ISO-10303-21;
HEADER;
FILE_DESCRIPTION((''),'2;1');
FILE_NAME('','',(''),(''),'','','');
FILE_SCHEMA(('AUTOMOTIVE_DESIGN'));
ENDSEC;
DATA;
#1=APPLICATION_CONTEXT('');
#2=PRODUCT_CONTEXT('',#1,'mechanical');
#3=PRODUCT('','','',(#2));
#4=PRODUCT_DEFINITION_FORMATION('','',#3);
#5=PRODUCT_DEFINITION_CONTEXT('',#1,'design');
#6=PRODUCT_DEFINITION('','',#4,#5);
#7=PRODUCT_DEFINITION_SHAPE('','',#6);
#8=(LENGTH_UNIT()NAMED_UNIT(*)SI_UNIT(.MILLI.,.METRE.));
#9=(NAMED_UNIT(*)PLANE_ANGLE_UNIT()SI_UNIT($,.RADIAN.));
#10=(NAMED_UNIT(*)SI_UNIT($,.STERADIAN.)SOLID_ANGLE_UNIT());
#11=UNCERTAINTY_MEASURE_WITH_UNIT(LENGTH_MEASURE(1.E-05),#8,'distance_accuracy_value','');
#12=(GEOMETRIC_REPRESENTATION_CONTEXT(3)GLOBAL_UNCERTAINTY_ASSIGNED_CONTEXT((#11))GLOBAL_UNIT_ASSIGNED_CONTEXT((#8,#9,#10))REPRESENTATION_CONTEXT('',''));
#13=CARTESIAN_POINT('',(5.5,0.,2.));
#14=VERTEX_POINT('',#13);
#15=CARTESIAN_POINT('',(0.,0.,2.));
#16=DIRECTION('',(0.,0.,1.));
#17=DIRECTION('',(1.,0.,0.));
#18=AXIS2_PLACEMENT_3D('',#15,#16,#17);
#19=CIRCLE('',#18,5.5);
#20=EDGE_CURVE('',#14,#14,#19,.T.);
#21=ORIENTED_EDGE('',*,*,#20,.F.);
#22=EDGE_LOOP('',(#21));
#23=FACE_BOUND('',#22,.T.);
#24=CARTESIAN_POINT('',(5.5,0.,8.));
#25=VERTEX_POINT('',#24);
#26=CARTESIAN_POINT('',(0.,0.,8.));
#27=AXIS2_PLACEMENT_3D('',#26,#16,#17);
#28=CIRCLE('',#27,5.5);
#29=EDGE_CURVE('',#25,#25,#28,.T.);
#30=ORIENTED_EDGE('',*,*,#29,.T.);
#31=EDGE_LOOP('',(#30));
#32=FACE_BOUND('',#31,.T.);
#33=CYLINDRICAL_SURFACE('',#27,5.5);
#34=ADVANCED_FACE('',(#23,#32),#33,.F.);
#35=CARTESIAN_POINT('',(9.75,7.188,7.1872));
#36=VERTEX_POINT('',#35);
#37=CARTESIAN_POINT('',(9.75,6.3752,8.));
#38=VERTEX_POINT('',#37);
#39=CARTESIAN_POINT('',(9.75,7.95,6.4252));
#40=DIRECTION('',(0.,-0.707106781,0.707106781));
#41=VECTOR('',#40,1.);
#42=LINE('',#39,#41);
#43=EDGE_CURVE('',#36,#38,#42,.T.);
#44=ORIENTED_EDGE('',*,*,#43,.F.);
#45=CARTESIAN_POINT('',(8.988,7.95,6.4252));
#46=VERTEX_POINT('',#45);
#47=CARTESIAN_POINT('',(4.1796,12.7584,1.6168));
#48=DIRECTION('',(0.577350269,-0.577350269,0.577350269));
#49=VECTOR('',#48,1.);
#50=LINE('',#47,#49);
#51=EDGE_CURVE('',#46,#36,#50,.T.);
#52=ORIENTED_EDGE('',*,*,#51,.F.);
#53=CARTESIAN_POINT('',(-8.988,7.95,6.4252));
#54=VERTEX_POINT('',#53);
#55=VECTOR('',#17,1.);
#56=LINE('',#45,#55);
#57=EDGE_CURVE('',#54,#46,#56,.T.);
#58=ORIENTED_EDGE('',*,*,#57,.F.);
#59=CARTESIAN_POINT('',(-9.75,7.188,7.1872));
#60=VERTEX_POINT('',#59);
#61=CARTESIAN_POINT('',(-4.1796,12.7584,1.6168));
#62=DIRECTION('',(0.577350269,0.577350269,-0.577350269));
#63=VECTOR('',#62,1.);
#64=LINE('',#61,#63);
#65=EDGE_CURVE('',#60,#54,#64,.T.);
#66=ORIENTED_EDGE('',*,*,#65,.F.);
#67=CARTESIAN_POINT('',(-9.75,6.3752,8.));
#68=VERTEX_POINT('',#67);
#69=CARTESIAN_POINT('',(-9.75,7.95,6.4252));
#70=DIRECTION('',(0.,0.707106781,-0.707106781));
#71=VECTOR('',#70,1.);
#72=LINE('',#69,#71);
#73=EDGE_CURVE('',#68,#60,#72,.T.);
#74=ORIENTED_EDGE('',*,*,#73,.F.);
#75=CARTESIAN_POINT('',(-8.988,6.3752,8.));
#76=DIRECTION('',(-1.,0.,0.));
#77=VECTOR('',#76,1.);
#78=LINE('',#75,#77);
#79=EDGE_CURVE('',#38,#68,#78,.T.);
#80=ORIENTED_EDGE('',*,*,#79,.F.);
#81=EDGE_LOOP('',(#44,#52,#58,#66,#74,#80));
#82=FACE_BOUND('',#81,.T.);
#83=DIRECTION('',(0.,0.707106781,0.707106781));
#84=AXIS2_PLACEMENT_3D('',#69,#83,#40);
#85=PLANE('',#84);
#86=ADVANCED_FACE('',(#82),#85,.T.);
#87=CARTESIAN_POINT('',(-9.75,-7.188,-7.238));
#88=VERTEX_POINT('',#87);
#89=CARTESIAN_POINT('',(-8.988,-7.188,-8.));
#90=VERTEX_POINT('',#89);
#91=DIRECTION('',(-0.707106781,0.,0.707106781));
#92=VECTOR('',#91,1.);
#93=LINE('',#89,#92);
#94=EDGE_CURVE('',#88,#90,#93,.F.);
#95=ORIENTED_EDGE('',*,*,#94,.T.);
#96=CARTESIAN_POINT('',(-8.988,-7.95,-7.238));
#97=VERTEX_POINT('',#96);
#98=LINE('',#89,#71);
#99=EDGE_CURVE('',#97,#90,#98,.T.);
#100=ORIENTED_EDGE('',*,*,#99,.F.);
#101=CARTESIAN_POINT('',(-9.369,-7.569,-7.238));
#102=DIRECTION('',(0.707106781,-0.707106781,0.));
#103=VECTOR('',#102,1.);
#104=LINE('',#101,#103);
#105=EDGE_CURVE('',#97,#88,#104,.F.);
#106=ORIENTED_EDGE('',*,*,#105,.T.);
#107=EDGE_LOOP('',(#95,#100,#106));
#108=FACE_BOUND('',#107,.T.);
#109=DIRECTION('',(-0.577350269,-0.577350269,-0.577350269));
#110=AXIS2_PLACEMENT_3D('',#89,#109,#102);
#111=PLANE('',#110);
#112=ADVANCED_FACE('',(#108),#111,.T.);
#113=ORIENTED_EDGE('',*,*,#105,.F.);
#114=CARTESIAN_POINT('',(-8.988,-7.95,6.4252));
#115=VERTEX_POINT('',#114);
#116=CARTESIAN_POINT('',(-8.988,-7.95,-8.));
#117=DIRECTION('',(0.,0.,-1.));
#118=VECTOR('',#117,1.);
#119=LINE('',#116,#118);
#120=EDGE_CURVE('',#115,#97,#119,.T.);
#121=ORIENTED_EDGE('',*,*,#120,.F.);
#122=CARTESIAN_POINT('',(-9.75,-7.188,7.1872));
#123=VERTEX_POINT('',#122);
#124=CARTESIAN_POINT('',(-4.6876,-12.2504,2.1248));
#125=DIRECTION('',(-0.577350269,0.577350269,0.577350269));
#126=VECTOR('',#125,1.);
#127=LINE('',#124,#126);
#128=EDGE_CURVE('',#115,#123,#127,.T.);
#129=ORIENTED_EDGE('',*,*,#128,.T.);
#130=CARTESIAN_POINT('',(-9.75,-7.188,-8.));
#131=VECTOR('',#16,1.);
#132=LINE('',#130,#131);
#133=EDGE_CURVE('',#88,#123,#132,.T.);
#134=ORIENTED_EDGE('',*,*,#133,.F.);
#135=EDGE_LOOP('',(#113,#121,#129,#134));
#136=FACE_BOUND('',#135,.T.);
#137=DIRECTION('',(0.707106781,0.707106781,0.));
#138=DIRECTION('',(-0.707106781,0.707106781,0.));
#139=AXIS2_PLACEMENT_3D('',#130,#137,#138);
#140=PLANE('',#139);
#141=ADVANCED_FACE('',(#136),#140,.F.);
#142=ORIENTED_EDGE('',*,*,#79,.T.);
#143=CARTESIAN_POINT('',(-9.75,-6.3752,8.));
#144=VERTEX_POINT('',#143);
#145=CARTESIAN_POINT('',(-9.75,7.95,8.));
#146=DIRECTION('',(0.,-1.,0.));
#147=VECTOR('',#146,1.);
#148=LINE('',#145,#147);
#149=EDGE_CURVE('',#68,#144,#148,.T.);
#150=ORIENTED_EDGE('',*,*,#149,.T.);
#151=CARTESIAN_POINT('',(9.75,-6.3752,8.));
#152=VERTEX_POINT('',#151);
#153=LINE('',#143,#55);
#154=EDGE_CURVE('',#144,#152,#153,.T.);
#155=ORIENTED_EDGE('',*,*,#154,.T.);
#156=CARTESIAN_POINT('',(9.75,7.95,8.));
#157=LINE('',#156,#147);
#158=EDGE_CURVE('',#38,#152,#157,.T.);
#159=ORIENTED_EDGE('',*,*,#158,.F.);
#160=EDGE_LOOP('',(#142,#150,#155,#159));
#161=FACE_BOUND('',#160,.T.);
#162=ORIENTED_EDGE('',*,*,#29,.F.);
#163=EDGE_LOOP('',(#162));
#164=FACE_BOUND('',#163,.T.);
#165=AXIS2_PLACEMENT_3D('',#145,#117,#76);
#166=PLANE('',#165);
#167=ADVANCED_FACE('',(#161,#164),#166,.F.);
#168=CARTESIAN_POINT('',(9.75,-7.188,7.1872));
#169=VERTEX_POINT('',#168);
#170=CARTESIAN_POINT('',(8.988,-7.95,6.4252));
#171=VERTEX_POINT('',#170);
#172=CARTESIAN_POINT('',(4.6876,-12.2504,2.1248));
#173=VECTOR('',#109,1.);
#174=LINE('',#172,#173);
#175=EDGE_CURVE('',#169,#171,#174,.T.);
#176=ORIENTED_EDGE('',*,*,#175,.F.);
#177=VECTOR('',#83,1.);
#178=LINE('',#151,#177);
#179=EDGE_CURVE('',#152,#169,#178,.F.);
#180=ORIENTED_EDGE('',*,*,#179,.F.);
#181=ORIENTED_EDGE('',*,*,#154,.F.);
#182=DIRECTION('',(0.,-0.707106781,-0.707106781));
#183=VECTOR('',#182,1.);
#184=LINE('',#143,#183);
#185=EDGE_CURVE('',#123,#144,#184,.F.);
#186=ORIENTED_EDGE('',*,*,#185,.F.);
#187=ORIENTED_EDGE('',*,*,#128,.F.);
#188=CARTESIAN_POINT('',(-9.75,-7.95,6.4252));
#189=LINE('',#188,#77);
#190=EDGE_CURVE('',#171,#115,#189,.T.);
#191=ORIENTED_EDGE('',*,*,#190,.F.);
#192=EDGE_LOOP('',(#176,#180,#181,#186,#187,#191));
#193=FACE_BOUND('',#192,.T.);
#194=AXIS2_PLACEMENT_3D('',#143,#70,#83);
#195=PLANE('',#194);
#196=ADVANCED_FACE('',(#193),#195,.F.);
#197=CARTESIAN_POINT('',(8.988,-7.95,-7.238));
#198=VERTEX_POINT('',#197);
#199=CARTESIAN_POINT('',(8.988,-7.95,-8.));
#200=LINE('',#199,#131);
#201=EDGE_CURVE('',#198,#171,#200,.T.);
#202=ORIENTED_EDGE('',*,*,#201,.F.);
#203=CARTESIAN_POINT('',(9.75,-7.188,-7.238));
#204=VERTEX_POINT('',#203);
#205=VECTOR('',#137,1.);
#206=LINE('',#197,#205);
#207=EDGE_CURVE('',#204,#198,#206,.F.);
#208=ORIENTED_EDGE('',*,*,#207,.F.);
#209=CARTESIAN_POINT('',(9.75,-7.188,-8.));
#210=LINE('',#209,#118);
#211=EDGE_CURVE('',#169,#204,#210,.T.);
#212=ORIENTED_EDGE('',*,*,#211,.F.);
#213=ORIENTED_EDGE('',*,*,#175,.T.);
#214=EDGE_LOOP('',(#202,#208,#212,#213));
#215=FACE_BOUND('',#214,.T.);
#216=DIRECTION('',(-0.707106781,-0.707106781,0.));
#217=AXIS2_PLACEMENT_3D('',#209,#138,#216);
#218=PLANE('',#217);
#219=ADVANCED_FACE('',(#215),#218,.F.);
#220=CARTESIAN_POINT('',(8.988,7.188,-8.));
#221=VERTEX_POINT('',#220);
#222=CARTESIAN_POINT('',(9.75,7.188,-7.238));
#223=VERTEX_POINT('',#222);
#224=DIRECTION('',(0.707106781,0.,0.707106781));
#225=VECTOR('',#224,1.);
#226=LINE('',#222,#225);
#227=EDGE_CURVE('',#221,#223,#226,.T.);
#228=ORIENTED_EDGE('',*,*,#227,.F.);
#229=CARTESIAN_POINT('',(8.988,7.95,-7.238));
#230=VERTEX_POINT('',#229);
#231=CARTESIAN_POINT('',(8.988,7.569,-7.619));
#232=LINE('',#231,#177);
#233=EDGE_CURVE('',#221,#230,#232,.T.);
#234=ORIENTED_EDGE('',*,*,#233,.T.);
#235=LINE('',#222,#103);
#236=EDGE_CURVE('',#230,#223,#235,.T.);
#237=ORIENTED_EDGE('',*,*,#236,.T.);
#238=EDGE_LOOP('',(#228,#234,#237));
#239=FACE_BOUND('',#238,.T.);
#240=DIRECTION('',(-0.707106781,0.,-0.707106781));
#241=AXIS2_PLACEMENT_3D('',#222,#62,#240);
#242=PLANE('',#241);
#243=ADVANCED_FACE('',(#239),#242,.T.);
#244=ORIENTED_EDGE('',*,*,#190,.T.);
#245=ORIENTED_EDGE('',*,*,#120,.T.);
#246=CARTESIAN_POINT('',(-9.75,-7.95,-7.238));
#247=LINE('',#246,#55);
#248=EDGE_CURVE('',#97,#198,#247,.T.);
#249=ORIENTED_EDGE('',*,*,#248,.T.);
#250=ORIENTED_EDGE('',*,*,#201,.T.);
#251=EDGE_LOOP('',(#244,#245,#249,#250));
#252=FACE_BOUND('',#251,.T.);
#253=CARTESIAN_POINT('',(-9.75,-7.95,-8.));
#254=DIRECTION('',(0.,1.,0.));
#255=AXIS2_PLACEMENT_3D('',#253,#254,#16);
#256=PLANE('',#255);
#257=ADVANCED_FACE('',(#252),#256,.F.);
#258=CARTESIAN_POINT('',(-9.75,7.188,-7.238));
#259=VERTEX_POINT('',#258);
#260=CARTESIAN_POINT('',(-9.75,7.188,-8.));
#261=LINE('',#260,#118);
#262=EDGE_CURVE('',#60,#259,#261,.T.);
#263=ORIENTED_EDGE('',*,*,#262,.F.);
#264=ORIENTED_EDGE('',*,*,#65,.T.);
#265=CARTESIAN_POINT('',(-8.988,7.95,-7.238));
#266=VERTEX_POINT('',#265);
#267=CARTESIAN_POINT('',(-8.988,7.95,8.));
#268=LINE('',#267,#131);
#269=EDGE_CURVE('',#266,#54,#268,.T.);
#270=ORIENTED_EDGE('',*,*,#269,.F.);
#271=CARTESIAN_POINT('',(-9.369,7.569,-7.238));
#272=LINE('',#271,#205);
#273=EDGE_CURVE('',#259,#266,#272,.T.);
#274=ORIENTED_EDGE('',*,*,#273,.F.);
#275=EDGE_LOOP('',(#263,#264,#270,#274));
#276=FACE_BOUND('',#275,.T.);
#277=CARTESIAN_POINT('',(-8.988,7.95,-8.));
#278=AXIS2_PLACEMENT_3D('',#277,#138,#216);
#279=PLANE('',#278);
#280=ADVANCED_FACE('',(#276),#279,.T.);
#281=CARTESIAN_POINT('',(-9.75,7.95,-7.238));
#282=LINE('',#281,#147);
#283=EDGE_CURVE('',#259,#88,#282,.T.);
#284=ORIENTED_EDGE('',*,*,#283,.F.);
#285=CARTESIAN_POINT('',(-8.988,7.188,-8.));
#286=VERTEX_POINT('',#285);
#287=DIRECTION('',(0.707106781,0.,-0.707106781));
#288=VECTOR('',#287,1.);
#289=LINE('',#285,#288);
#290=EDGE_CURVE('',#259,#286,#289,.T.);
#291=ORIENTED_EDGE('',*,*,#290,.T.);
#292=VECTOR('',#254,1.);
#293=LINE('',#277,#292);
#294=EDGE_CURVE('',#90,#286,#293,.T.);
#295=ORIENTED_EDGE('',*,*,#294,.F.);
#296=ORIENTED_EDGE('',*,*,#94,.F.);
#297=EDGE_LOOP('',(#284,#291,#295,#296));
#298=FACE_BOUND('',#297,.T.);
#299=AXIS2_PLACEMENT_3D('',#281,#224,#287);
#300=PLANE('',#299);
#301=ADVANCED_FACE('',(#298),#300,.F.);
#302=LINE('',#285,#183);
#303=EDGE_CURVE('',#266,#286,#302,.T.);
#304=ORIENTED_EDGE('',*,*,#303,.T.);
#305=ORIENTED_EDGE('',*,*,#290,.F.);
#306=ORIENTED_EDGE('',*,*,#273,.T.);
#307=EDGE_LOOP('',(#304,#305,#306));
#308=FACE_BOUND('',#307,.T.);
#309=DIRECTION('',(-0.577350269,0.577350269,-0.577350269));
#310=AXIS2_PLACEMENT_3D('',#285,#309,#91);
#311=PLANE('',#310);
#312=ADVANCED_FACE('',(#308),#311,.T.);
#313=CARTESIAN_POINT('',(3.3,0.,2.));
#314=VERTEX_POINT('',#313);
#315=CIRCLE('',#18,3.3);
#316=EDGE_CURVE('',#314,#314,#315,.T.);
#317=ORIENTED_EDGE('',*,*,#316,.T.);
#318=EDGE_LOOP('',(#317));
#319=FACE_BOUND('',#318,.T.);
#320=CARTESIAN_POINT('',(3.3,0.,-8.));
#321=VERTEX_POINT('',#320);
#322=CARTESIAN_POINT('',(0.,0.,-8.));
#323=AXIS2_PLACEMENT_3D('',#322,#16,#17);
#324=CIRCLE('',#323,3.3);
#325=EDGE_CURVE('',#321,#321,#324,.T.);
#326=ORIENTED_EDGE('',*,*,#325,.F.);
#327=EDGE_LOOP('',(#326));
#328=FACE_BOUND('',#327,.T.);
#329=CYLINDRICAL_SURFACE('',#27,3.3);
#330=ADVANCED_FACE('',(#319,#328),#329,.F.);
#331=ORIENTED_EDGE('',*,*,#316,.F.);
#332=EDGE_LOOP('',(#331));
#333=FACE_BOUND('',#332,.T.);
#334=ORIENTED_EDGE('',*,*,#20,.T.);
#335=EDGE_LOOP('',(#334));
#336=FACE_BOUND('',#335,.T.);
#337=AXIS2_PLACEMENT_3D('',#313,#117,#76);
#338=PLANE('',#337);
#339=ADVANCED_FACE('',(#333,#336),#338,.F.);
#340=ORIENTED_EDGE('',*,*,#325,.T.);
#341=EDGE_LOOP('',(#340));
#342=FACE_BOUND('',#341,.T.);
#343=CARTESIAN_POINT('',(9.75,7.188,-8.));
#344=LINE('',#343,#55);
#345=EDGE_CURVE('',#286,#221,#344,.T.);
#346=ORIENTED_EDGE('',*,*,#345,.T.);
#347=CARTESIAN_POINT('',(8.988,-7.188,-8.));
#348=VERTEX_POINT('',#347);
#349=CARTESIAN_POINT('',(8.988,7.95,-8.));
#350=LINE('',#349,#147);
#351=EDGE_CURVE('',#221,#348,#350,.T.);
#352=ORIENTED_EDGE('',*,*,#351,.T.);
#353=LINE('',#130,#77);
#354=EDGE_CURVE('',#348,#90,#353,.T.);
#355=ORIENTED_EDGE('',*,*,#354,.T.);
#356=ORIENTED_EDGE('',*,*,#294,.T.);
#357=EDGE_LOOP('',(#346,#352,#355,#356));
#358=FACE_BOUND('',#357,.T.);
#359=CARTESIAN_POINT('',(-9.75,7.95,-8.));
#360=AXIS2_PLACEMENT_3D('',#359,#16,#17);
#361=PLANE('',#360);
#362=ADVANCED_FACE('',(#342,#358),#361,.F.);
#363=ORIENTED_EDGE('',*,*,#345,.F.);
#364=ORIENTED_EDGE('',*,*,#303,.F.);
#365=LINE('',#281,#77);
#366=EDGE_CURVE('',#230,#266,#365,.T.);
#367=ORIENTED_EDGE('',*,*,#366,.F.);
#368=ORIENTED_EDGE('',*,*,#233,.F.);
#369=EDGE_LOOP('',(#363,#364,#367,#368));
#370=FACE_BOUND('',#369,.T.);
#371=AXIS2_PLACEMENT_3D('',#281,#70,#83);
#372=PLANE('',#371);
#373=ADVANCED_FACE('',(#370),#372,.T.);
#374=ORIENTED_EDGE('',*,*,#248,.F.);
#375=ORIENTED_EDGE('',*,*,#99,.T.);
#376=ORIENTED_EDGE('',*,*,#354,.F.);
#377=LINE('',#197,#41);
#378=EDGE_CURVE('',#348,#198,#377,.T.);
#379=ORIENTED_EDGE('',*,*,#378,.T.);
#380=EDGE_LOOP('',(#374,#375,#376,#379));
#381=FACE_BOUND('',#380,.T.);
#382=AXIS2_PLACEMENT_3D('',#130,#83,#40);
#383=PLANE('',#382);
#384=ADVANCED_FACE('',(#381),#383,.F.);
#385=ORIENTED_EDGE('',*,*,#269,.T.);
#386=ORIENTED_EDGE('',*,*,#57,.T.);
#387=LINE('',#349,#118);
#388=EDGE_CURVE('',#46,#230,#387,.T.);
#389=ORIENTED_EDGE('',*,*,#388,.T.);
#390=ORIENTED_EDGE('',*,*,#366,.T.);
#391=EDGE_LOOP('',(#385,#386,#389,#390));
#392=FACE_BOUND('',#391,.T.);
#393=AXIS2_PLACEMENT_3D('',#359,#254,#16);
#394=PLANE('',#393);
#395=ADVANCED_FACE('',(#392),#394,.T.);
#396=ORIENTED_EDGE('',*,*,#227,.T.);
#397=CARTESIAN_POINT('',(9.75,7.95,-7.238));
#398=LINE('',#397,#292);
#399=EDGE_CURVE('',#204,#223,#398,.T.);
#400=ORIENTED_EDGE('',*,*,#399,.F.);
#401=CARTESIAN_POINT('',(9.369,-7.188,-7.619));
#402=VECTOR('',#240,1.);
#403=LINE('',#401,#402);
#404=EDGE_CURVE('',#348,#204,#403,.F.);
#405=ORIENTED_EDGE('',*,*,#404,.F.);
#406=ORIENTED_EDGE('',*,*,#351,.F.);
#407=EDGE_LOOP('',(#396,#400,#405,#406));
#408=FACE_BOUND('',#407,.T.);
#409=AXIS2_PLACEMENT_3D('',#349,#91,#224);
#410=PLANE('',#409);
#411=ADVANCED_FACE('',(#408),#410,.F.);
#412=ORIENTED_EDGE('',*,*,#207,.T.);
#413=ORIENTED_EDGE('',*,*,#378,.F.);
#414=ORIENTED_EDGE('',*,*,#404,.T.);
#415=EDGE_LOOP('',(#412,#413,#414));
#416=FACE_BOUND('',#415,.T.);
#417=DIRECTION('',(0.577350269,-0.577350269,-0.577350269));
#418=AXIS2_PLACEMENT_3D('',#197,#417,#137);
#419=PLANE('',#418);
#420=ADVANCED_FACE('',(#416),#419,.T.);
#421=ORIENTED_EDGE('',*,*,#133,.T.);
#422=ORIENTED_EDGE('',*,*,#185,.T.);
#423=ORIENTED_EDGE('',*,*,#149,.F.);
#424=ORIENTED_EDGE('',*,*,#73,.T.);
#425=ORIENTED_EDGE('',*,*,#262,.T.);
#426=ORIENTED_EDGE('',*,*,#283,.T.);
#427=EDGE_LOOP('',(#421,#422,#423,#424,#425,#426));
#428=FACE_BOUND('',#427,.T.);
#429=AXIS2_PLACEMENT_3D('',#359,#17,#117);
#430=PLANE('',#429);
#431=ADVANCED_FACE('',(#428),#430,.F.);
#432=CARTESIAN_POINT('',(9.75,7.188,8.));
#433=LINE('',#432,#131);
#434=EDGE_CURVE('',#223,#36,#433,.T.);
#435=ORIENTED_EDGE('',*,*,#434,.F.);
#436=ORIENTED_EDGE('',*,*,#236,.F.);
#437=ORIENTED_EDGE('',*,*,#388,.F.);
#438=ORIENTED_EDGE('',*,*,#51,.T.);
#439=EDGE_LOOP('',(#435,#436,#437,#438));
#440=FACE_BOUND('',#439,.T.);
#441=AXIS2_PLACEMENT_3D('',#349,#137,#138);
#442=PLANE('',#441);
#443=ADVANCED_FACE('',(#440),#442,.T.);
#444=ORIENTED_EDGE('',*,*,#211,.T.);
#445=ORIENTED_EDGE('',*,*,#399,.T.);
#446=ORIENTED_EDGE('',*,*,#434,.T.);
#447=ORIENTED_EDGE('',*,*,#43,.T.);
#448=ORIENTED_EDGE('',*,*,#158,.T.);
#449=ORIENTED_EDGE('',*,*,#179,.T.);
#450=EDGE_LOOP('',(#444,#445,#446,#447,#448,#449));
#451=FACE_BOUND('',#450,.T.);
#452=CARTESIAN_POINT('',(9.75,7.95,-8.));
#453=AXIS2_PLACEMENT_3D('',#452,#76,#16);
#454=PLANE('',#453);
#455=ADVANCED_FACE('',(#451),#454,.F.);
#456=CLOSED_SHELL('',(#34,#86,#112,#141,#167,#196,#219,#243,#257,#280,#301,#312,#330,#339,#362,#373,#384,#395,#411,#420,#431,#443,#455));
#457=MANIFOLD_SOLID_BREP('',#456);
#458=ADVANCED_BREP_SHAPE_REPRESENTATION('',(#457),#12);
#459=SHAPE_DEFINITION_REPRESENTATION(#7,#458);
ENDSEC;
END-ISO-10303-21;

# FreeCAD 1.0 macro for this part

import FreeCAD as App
import Part
import Sketcher
from FreeCAD import Vector


def edges_at(feature, points):
    """Names of the edges that pass closest to the given points."""
    edges = feature.Shape.Edges
    near = lambda p: min(range(len(edges)), key=lambda i: edges[i].distToShape(Part.Vertex(*p))[0])
    return sorted({f"Edge{near(p) + 1}" for p in points})


def add_polygon(sketch, points):
    """Adds a closed chain of lines whose ends are joined by coincident constraints."""
    first, n = sketch.GeometryCount, len(points)
    for a, b in zip(points, points[1:] + points[:1]):
        sketch.addGeometry(Part.LineSegment(App.Vector(*a, 0), App.Vector(*b, 0)), False)
    for i in range(n):
        sketch.addConstraint(Sketcher.Constraint("Coincident", first + i, 2, first + (i + 1) % n, 1))

doc = App.newDocument("Part")
body = doc.addObject("PartDesign::Body", "Body")

sketch1 = body.newObject("Sketcher::SketchObject", "Sketch")
sketch1.AttachmentSupport = (doc.getObject("XZ_Plane"), [""])
sketch1.MapMode = "FlatFace"
add_polygon(sketch1, [(-10, -8), (-10, 8), (10, 8), (10, -8)])
sketch1.addConstraint(Sketcher.Constraint("Vertical", 0))
sketch1.addConstraint(Sketcher.Constraint("Horizontal", 1))
sketch1.addConstraint(Sketcher.Constraint("Vertical", 2))
sketch1.addConstraint(Sketcher.Constraint("Horizontal", 3))
sketch1.addConstraint(Sketcher.Constraint("Symmetric", 0, 2, 2, 2, -1, 1))
sketch1.addConstraint(Sketcher.Constraint("DistanceY", 0, 1, 0, 2, 16.0))
sketch1.addConstraint(Sketcher.Constraint("DistanceX", 1, 1, 1, 2, 19.5))
pad1 = body.newObject("PartDesign::Pad", "Pad")
pad1.Profile = sketch1
pad1.Length = 15.9
pad1.Midplane = True

sketch2 = body.newObject("Sketcher::SketchObject", "Sketch001")
sketch2.AttachmentSupport = (doc.getObject("XY_Plane"), [""])
sketch2.MapMode = "FlatFace"
sketch2.AttachmentOffset = App.Placement(Vector(0, 0, 8), App.Rotation())
sketch2.addGeometry(Part.Circle(Vector(0, 0, 0), Vector(0, 0, 1), 3.3), False)
sketch2.addConstraint(Sketcher.Constraint("Coincident", 0, 3, -1, 1))
sketch2.addConstraint(Sketcher.Constraint("Diameter", 0, 6.6))
doc.recompute()
hole = body.newObject("PartDesign::Hole", "Hole")
hole.Profile = sketch2
hole.ThreadType = "None"
hole.Diameter = 6.6
hole.DepthType = "ThroughAll"
hole.HoleCutType = "Counterbore"
hole.HoleCutDiameter = 11
hole.HoleCutDepth = 6
doc.recompute()

chamfer = body.newObject("PartDesign::Chamfer", "Chamfer")
chamfer.Base = (hole, edges_at(hole, [
    (9.75, 7.95, 0),
    (0, 7.95, -8),
    (-9.75, 7.95, 0),
    (0, -7.95, -8),
    (9.75, -7.95, 0),
    (-9.75, -7.95, 0),
    (-9.75, 0, -8),
    (9.75, 0, -8),
]))
chamfer.Size = 0.762
doc.recompute()

chamfer2 = body.newObject("PartDesign::Chamfer", "Chamfer001")
chamfer2.Base = (chamfer, edges_at(chamfer, [(0, -7.95, 8), (0, 7.95, 8)]))
chamfer2.Size = 1.5748

doc.recompute()
